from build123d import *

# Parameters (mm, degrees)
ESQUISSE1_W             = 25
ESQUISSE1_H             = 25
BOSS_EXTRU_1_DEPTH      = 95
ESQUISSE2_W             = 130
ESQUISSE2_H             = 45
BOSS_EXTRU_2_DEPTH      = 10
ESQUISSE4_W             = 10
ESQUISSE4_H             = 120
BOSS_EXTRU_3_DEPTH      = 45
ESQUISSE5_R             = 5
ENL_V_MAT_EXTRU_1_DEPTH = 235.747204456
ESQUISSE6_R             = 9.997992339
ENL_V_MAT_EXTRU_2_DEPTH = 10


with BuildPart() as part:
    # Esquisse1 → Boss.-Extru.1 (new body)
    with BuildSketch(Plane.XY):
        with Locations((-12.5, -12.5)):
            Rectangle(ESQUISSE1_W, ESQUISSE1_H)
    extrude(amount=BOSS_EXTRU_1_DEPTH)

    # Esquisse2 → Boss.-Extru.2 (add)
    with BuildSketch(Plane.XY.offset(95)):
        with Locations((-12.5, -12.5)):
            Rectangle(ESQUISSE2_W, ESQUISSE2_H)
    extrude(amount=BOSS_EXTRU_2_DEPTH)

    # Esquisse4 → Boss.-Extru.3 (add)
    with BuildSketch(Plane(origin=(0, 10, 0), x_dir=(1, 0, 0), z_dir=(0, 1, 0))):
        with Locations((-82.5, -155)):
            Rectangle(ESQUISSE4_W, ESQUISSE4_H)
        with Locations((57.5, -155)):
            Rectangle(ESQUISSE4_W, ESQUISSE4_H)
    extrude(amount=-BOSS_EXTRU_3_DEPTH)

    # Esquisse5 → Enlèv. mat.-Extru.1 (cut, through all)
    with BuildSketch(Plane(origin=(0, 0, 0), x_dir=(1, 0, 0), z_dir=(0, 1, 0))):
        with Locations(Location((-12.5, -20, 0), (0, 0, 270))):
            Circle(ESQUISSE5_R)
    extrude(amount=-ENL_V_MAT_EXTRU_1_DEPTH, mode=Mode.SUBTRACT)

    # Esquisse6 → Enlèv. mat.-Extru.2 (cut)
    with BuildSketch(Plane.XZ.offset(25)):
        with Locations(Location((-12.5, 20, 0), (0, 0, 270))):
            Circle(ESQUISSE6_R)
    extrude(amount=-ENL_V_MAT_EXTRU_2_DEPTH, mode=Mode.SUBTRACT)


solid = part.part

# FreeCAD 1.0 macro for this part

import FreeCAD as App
import Part
import Sketcher

doc = App.newDocument("Part")
body = doc.addObject("PartDesign::Body", "Body")

# Sketch on XY plane
sketch1 = doc.addObject("Sketcher::SketchObject", "Sketch")
body.addObject(sketch1)
sketch1.AttachmentSupport = (doc.XY_Plane, [""])
sketch1.MapMode = "FlatFace"
sketch1.addGeometry([
    Part.LineSegment(App.Vector(-25, 0, 0), App.Vector(-25, -25, 0)),
    Part.LineSegment(App.Vector(-25, -25, 0), App.Vector(0, -25, 0)),
    Part.LineSegment(App.Vector(0, -25, 0), App.Vector(0, 0, 0)),
    Part.LineSegment(App.Vector(0, 0, 0), App.Vector(-25, 0, 0)),
], False)
sketch1.addConstraint([
    Sketcher.Constraint("Coincident", 0, 2, 1, 1),
    Sketcher.Constraint("Coincident", 1, 2, 2, 1),
    Sketcher.Constraint("Coincident", 2, 2, 3, 1),
    Sketcher.Constraint("Coincident", 3, 2, 0, 1),
    Sketcher.Constraint("Vertical", 0),
    Sketcher.Constraint("Horizontal", 1),
    Sketcher.Constraint("Vertical", 2),
    Sketcher.Constraint("Horizontal", 3),
    Sketcher.Constraint("Coincident", 2, 2, -1, 1),
    Sketcher.Constraint("Equal", 3, 0),
    Sketcher.Constraint("DistanceX", 1, 1, 1, 2, 25.0),
])
pad1 = doc.addObject("PartDesign::Pad", "Pad")
body.addObject(pad1)
pad1.Profile = sketch1
pad1.Length = 95

# Sketch on XY plane
sketch2 = doc.addObject("Sketcher::SketchObject", "Sketch001")
body.addObject(sketch2)
sketch2.AttachmentSupport = (doc.XY_Plane, [""])
sketch2.MapMode = "FlatFace"
sketch2.AttachmentOffset = App.Placement(App.Vector(0, 0, 95), App.Rotation())
sketch2.addGeometry([
    Part.LineSegment(App.Vector(-78, 10, 0), App.Vector(-78, -35, 0)),
    Part.LineSegment(App.Vector(-78, -35, 0), App.Vector(52, -35, 0)),
    Part.LineSegment(App.Vector(52, -35, 0), App.Vector(52, 10, 0)),
    Part.LineSegment(App.Vector(52, 10, 0), App.Vector(-78, 10, 0)),
], False)
sketch2.addConstraint([
    Sketcher.Constraint("Coincident", 0, 2, 1, 1),
    Sketcher.Constraint("Coincident", 1, 2, 2, 1),
    Sketcher.Constraint("Coincident", 2, 2, 3, 1),
    Sketcher.Constraint("Coincident", 3, 2, 0, 1),
    Sketcher.Constraint("Vertical", 0),
    Sketcher.Constraint("Horizontal", 1),
    Sketcher.Constraint("Vertical", 2),
    Sketcher.Constraint("Horizontal", 3),
    Sketcher.Constraint("DistanceX", 1, 1, 1, 2, 130.0),
    Sketcher.Constraint("DistanceY", 0, 2, 0, 1, 45.0),
    Sketcher.Constraint("DistanceY", 0, 2, -1, 1, 35.0),
    Sketcher.Constraint("DistanceX", 0, 2, -1, 1, 77.5),
])
pad2 = doc.addObject("PartDesign::Pad", "Pad001")
body.addObject(pad2)
pad2.Profile = sketch2
pad2.Length = 10

# Sketch on XZ plane
sketch3 = doc.addObject("Sketcher::SketchObject", "Sketch002")
body.addObject(sketch3)
sketch3.AttachmentSupport = (doc.XZ_Plane, [""])
sketch3.MapMode = "FlatFace"
sketch3.AttachmentOffset = App.Placement(App.Vector(0, 0, -10), App.Rotation())
sketch3.addGeometry([
    Part.LineSegment(App.Vector(-88, 95, 0), App.Vector(-88, 215, 0)),  # 0
    Part.LineSegment(App.Vector(-88, 215, 0), App.Vector(-78, 215, 0)),  # 1
    Part.LineSegment(App.Vector(-78, 215, 0), App.Vector(-78, 95, 0)),  # 2
    Part.LineSegment(App.Vector(-78, 95, 0), App.Vector(-88, 95, 0)),  # 3
    Part.LineSegment(App.Vector(52, 95, 0), App.Vector(52, 215, 0)),  # 4
    Part.LineSegment(App.Vector(52, 215, 0), App.Vector(62, 215, 0)),  # 5
    Part.LineSegment(App.Vector(62, 215, 0), App.Vector(62, 95, 0)),  # 6
    Part.LineSegment(App.Vector(62, 95, 0), App.Vector(52, 95, 0)),  # 7
], False)
sketch3.addConstraint([
    Sketcher.Constraint("Coincident", 0, 2, 1, 1),
    Sketcher.Constraint("Coincident", 1, 2, 2, 1),
    Sketcher.Constraint("Coincident", 2, 2, 3, 1),
    Sketcher.Constraint("Coincident", 3, 2, 0, 1),
    Sketcher.Constraint("Coincident", 4, 2, 5, 1),
    Sketcher.Constraint("Coincident", 5, 2, 6, 1),
    Sketcher.Constraint("Coincident", 6, 2, 7, 1),
    Sketcher.Constraint("Coincident", 7, 2, 4, 1),
    Sketcher.Constraint("Vertical", 0),
    Sketcher.Constraint("Horizontal", 1),
    Sketcher.Constraint("Vertical", 2),
    Sketcher.Constraint("Horizontal", 3),
    Sketcher.Constraint("Vertical", 4),
    Sketcher.Constraint("Horizontal", 5),
    Sketcher.Constraint("Vertical", 6),
    Sketcher.Constraint("Horizontal", 7),
    Sketcher.Constraint("Horizontal", 1, 2, 4, 2),
    Sketcher.Constraint("Horizontal", 3, 2, 6, 2),
    Sketcher.Constraint("Equal", 3, 5),
    Sketcher.Constraint("DistanceX", 1, 1, 1, 2, 10.0),
    Sketcher.Constraint("DistanceY", 0, 1, 0, 2, 120.0),
    Sketcher.Constraint("DistanceY", -1, 1, 0, 2, 215.0),
    Sketcher.Constraint("DistanceX", 1, 2, 4, 2, 130.0),
    Sketcher.Constraint("DistanceX", 0, 2, -1, 1, 87.5),
])
pad3 = doc.addObject("PartDesign::Pad", "Pad002")
body.addObject(pad3)
pad3.Profile = sketch3
pad3.Length = 45

# Sketch on XZ plane
sketch4 = doc.addObject("Sketcher::SketchObject", "Sketch003")
body.addObject(sketch4)
sketch4.AttachmentSupport = (doc.XZ_Plane, [""])
sketch4.MapMode = "FlatFace"
sketch4.addGeometry(Part.Circle(App.Vector(-12, 20, 0), App.Vector(0, 0, 1), 5), False)
sketch4.addConstraint([
    Sketcher.Constraint("Diameter", 0, 10.0),
    Sketcher.Constraint("DistanceY", -1, 1, 0, 3, 20.0),
    Sketcher.Constraint("DistanceX", 0, 3, -1, 1, 12.5),
])
pocket1 = doc.addObject("PartDesign::Pocket", "Pocket")
body.addObject(pocket1)
pocket1.Profile = sketch4
pocket1.Type = "ThroughAll"
pocket1.Reversed = True

# Sketch on XZ plane
sketch5 = doc.addObject("Sketcher::SketchObject", "Sketch004")
body.addObject(sketch5)
sketch5.AttachmentSupport = (doc.XZ_Plane, [""])
sketch5.MapMode = "FlatFace"
sketch5.AttachmentOffset = App.Placement(App.Vector(0, 0, 25), App.Rotation())
sketch5.addGeometry(Part.Circle(App.Vector(-12, 20, 0), App.Vector(0, 0, 1), 10), False)
sketch5.addConstraint([
    Sketcher.Constraint("DistanceY", -1, 1, 0, 3, 20.0),
    Sketcher.Constraint("DistanceX", 0, 3, -1, 1, 12.5),
    Sketcher.Constraint("Diameter", 0, 19.995985),
])
pocket2 = doc.addObject("PartDesign::Pocket", "Pocket001")
body.addObject(pocket2)
pocket2.Profile = sketch5
pocket2.Length = 10

doc.recompute()
